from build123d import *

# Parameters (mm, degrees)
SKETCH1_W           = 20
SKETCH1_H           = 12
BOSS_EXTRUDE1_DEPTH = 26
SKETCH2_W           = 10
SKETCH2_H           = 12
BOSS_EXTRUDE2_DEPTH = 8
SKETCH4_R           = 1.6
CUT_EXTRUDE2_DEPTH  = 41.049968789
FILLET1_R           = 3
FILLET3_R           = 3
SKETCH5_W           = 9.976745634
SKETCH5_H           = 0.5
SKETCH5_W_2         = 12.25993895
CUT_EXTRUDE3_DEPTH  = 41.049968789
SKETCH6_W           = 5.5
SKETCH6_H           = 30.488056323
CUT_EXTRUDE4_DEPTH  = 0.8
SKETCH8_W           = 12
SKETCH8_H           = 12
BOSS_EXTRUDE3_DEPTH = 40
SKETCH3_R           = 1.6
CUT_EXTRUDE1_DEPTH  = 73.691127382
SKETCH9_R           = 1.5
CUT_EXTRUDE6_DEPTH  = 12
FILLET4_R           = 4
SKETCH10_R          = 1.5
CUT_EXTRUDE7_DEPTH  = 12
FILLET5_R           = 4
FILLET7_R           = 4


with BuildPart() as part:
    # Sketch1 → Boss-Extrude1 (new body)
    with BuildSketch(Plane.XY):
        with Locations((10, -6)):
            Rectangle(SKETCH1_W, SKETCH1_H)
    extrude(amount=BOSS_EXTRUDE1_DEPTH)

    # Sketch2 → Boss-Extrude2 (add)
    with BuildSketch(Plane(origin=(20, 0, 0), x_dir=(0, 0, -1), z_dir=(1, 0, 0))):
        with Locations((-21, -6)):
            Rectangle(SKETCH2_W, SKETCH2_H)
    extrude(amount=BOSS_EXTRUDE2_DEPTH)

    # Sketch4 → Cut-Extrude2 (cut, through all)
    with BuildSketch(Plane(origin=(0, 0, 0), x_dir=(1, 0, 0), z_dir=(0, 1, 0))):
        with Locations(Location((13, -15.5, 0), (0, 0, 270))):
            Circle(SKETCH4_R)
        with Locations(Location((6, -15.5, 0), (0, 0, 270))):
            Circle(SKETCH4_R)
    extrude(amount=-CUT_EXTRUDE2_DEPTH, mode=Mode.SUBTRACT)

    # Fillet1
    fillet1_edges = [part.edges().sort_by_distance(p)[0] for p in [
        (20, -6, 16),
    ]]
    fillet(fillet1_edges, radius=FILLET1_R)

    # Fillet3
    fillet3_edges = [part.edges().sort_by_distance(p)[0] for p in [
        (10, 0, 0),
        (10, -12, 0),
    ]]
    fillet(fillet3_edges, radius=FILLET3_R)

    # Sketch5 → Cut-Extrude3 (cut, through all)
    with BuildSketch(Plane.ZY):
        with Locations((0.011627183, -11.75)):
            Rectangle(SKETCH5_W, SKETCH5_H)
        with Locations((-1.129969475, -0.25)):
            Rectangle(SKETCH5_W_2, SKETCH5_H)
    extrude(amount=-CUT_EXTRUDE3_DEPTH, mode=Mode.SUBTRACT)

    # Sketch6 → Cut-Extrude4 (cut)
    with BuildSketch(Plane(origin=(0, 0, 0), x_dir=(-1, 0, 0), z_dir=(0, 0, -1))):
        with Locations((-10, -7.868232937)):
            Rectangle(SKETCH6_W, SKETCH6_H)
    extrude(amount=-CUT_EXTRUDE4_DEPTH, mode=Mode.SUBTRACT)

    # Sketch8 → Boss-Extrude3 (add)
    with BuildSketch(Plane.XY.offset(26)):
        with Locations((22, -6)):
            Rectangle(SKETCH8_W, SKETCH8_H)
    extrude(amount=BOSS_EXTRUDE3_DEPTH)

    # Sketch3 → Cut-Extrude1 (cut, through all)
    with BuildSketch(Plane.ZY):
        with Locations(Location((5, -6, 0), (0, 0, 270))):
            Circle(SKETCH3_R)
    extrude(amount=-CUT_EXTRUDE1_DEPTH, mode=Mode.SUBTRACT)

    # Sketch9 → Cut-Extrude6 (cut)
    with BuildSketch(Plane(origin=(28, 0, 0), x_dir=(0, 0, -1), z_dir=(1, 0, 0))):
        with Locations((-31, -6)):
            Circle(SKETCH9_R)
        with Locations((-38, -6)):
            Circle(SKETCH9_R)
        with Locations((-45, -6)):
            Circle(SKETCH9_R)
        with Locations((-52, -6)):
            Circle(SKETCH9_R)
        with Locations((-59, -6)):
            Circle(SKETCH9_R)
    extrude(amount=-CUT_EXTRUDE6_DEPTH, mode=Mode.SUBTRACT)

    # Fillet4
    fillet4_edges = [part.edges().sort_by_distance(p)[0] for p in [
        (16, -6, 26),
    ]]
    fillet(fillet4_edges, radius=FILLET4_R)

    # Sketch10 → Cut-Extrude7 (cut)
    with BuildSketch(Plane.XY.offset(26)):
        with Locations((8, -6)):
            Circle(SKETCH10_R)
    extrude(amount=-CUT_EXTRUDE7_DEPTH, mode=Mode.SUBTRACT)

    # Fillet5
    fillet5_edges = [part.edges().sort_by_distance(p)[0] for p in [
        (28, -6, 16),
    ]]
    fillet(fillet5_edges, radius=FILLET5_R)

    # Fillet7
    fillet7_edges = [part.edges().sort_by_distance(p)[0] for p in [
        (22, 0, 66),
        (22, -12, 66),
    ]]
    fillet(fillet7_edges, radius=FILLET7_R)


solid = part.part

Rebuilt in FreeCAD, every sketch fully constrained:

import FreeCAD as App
import Part
import Sketcher

V = App.Vector


def edges_at(feature, points):
    """Names of the edges that pass closest to the given points."""
    edges = feature.Shape.Edges
    near = lambda p: min(range(len(edges)), key=lambda i: edges[i].distToShape(Part.Vertex(*p))[0])
    return sorted({f"Edge{near(p) + 1}" for p in points})


def add_polygon(sketch, points):
    """Adds a closed chain of lines whose ends are joined by coincident constraints."""
    first, n = sketch.GeometryCount, len(points)
    for a, b in zip(points, points[1:] + points[:1]):
        sketch.addGeometry(Part.LineSegment(App.Vector(*a, 0), App.Vector(*b, 0)), False)
    for i in range(n):
        sketch.addConstraint(Sketcher.Constraint("Coincident", first + i, 2, first + (i + 1) % n, 1))

doc = App.newDocument("Part")
body = doc.addObject("PartDesign::Body", "Body")

# Sketch on XY plane
sketch1 = doc.addObject("Sketcher::SketchObject", "Sketch")
body.addObject(sketch1)
sketch1.AttachmentSupport = (doc.XY_Plane, [""])
sketch1.MapMode = "FlatFace"
add_polygon(sketch1, [(0, 0), (0, -12), (20, -12), (20, 0)])  # lines 0-3
sketch1.addConstraint([
    Sketcher.Constraint("Vertical", 0),
    Sketcher.Constraint("Horizontal", 1),
    Sketcher.Constraint("Vertical", 2),
    Sketcher.Constraint("Horizontal", 3),
    Sketcher.Constraint("Coincident", 3, 2, -1, 1),
    Sketcher.Constraint("DistanceX", 1, 1, 1, 2, 20.0),
    Sketcher.Constraint("DistanceY", 0, 2, 0, 1, 12.0),
])
pad1 = doc.addObject("PartDesign::Pad", "Pad")
body.addObject(pad1)
pad1.Profile = sketch1
pad1.Length = 26

# Sketch on YZ plane
sketch2 = doc.addObject("Sketcher::SketchObject", "Sketch001")
body.addObject(sketch2)
sketch2.AttachmentSupport = (doc.YZ_Plane, [""])
sketch2.MapMode = "FlatFace"
sketch2.AttachmentOffset = App.Placement(V(0, 0, 20), App.Rotation())
add_polygon(sketch2, [(0, 26), (-12, 26), (-12, 16), (0, 16)])  # lines 0-3
sketch2.addConstraint([
    Sketcher.Constraint("Horizontal", 0),
    Sketcher.Constraint("Vertical", 1),
    Sketcher.Constraint("Horizontal", 2),
    Sketcher.Constraint("Vertical", 3),
    Sketcher.Constraint("PointOnObject", 2, 2, -2),
    Sketcher.Constraint("DistanceX", 0, 2, 0, 1, 12.0),
    Sketcher.Constraint("DistanceY", 1, 2, 1, 1, 10.0),
    Sketcher.Constraint("DistanceY", -1, 1, 0, 2, 26.0),
])
pad2 = doc.addObject("PartDesign::Pad", "Pad001")
body.addObject(pad2)
pad2.Profile = sketch2
pad2.Length = 8

# Sketch on XZ plane
sketch3 = doc.addObject("Sketcher::SketchObject", "Sketch002")
body.addObject(sketch3)
sketch3.AttachmentSupport = (doc.XZ_Plane, [""])
sketch3.MapMode = "FlatFace"
sketch3.addGeometry([
    Part.Circle(V(13, 15.5, 0), V(0, 0, 1), 1.6),
    Part.Circle(V(6, 15.5, 0), V(0, 0, 1), 1.6),
], False)
sketch3.addConstraint([
    Sketcher.Constraint("Equal", 0, 1),
    Sketcher.Constraint("Horizontal", 0, 3, 1, 3),
    Sketcher.Constraint("Diameter", 0, 3.2),
    Sketcher.Constraint("DistanceX", -1, 1, 0, 3, 13.0),
    Sketcher.Constraint("DistanceX", -1, 1, 1, 3, 6.0),
    Sketcher.Constraint("DistanceY", -1, 1, 0, 3, 15.5),
])
pocket1 = doc.addObject("PartDesign::Pocket", "Pocket")
body.addObject(pocket1)
pocket1.Profile = sketch3
pocket1.Type = "ThroughAll"
pocket1.Reversed = True
doc.recompute()

fillet = doc.addObject("PartDesign::Fillet", "Fillet")
body.addObject(fillet)
fillet.Base = (pocket1, edges_at(pocket1, [(20, -6, 16)]))
fillet.Radius = 3
doc.recompute()

fillet2 = doc.addObject("PartDesign::Fillet", "Fillet001")
body.addObject(fillet2)
fillet2.Base = (fillet, edges_at(fillet, [(10, 0, 0), (10, -12, 0)]))
fillet2.Radius = 3

# Sketch on YZ plane
sketch4 = doc.addObject("Sketcher::SketchObject", "Sketch003")
body.addObject(sketch4)
sketch4.AttachmentSupport = (doc.YZ_Plane, [""])
sketch4.MapMode = "FlatFace"
add_polygon(sketch4, [(-11.5, -4.976746), (-12, -4.976746), (-12, 5), (-11.5, 5)])  # lines 0-3
add_polygon(sketch4, [(0, -7.259939), (-0.5, -7.259939), (-0.5, 5), (0, 5)])  # lines 4-7
sketch4.addConstraint([
    Sketcher.Constraint("Horizontal", 0),
    Sketcher.Constraint("Vertical", 1),
    Sketcher.Constraint("Horizontal", 2),
    Sketcher.Constraint("Vertical", 3),
    Sketcher.Constraint("Horizontal", 4),
    Sketcher.Constraint("Vertical", 5),
    Sketcher.Constraint("Horizontal", 6),
    Sketcher.Constraint("Vertical", 7),
    Sketcher.Constraint("PointOnObject", 6, 2, -2),
    Sketcher.Constraint("Horizontal", 2, 2, 5, 2),
    Sketcher.Constraint("Equal", 2, 4),
    Sketcher.Constraint("DistanceX", 0, 2, 0, 1, 0.5),
    Sketcher.Constraint("DistanceX", 0, 2, -1, 1, 12.0),
    Sketcher.Constraint("DistanceY", -1, 1, 1, 2, 5.0),
    Sketcher.Constraint("DistanceY", 5, 1, 5, 2, 12.259939),
    Sketcher.Constraint("DistanceY", 1, 1, 1, 2, 9.976746),
])
pocket2 = doc.addObject("PartDesign::Pocket", "Pocket001")
body.addObject(pocket2)
pocket2.Profile = sketch4
pocket2.Type = "ThroughAll"
pocket2.Reversed = True

# Sketch on XY plane
sketch5 = doc.addObject("Sketcher::SketchObject", "Sketch004")
body.addObject(sketch5)
sketch5.AttachmentSupport = (doc.XY_Plane, [""])
sketch5.MapMode = "FlatFace"
add_polygon(sketch5, [(12.75, 7.375795), (12.75, -23.112261), (7.25, -23.112261), (7.25, 7.375795)])  # lines 0-3
sketch5.addConstraint([
    Sketcher.Constraint("Vertical", 0),
    Sketcher.Constraint("Horizontal", 1),
    Sketcher.Constraint("Vertical", 2),
    Sketcher.Constraint("Horizontal", 3),
    Sketcher.Constraint("DistanceX", 1, 2, 1, 1, 5.5),
    Sketcher.Constraint("DistanceX", -1, 1, 0, 2, 12.75),
    Sketcher.Constraint("DistanceY", 0, 2, 0, 1, 30.488056),
    Sketcher.Constraint("DistanceY", 0, 2, -1, 1, 23.112261),
])
pocket3 = doc.addObject("PartDesign::Pocket", "Pocket002")
body.addObject(pocket3)
pocket3.Profile = sketch5
pocket3.Length = 0.8
pocket3.Reversed = True

# Sketch on XY plane
sketch6 = doc.addObject("Sketcher::SketchObject", "Sketch005")
body.addObject(sketch6)
sketch6.AttachmentSupport = (doc.XY_Plane, [""])
sketch6.MapMode = "FlatFace"
sketch6.AttachmentOffset = App.Placement(V(0, 0, 26), App.Rotation())
add_polygon(sketch6, [(16, 0), (16, -12), (28, -12), (28, 0)])  # lines 0-3
sketch6.addConstraint([
    Sketcher.Constraint("Vertical", 0),
    Sketcher.Constraint("Horizontal", 1),
    Sketcher.Constraint("Vertical", 2),
    Sketcher.Constraint("Horizontal", 3),
    Sketcher.Constraint("PointOnObject", 2, 2, -1),
    Sketcher.Constraint("Equal", 3, 0),
    Sketcher.Constraint("DistanceX", 1, 1, 1, 2, 12.0),
    Sketcher.Constraint("DistanceX", -1, 1, 0, 2, 16.0),
])
pad3 = doc.addObject("PartDesign::Pad", "Pad002")
body.addObject(pad3)
pad3.Profile = sketch6
pad3.Length = 40

# Sketch on YZ plane
sketch7 = doc.addObject("Sketcher::SketchObject", "Sketch006")
body.addObject(sketch7)
sketch7.AttachmentSupport = (doc.YZ_Plane, [""])
sketch7.MapMode = "FlatFace"
sketch7.addGeometry(Part.Circle(V(-6, 5, 0), V(0, 0, 1), 1.6), False)
sketch7.addConstraint([
    Sketcher.Constraint("Diameter", 0, 3.2),
    Sketcher.Constraint("DistanceX", 0, 3, -1, 1, 6.0),
    Sketcher.Constraint("DistanceY", -1, 1, 0, 3, 5.0),
])
pocket4 = doc.addObject("PartDesign::Pocket", "Pocket003")
body.addObject(pocket4)
pocket4.Profile = sketch7
pocket4.Type = "ThroughAll"
pocket4.Reversed = True

# Sketch on YZ plane
sketch8 = doc.addObject("Sketcher::SketchObject", "Sketch007")
body.addObject(sketch8)
sketch8.AttachmentSupport = (doc.YZ_Plane, [""])
sketch8.MapMode = "FlatFace"
sketch8.AttachmentOffset = App.Placement(V(0, 0, 28), App.Rotation())
sketch8.addGeometry([
    Part.Circle(V(-6, 31, 0), V(0, 0, 1), 1.5),  # 0
    Part.Circle(V(-6, 38, 0), V(0, 0, 1), 1.5),  # 1
    Part.Circle(V(-6, 45, 0), V(0, 0, 1), 1.5),  # 2
    Part.Circle(V(-6, 52, 0), V(0, 0, 1), 1.5),  # 3
    Part.Circle(V(-6, 59, 0), V(0, 0, 1), 1.5),  # 4
], False)
sketch8.addConstraint([
    Sketcher.Constraint("Equal", 0, 1),
    Sketcher.Constraint("Equal", 1, 2),
    Sketcher.Constraint("Equal", 2, 3),
    Sketcher.Constraint("Equal", 3, 4),
    Sketcher.Constraint("Vertical", 0, 3, 1, 3),
    Sketcher.Constraint("Vertical", 1, 3, 2, 3),
    Sketcher.Constraint("Vertical", 2, 3, 3, 3),
    Sketcher.Constraint("Vertical", 3, 3, 4, 3),
    Sketcher.Constraint("Diameter", 0, 3.0),
    Sketcher.Constraint("DistanceX", 0, 3, -1, 1, 6.0),
    Sketcher.Constraint("DistanceY", -1, 1, 0, 3, 31.0),
    Sketcher.Constraint("DistanceY", -1, 1, 1, 3, 38.0),
    Sketcher.Constraint("DistanceY", -1, 1, 2, 3, 45.0),
    Sketcher.Constraint("DistanceY", -1, 1, 3, 3, 52.0),
    Sketcher.Constraint("DistanceY", -1, 1, 4, 3, 59.0),
])
pocket5 = doc.addObject("PartDesign::Pocket", "Pocket004")
body.addObject(pocket5)
pocket5.Profile = sketch8
pocket5.Length = 12
doc.recompute()

fillet3 = doc.addObject("PartDesign::Fillet", "Fillet002")
body.addObject(fillet3)
fillet3.Base = (pocket5, edges_at(pocket5, [(16, -6, 26)]))
fillet3.Radius = 4

# Sketch on XY plane
sketch9 = doc.addObject("Sketcher::SketchObject", "Sketch008")
body.addObject(sketch9)
sketch9.AttachmentSupport = (doc.XY_Plane, [""])
sketch9.MapMode = "FlatFace"
sketch9.AttachmentOffset = App.Placement(V(0, 0, 26), App.Rotation())
sketch9.addGeometry(Part.Circle(V(8, -6, 0), V(0, 0, 1), 1.5), False)
sketch9.addConstraint([
    Sketcher.Constraint("Diameter", 0, 3.0),
    Sketcher.Constraint("DistanceX", -1, 1, 0, 3, 8.0),
    Sketcher.Constraint("DistanceY", 0, 3, -1, 1, 6.0),
])
pocket6 = doc.addObject("PartDesign::Pocket", "Pocket005")
body.addObject(pocket6)
pocket6.Profile = sketch9
pocket6.Length = 12
doc.recompute()

fillet4 = doc.addObject("PartDesign::Fillet", "Fillet003")
body.addObject(fillet4)
fillet4.Base = (pocket6, edges_at(pocket6, [(28, -6, 16)]))
fillet4.Radius = 4
doc.recompute()

fillet5 = doc.addObject("PartDesign::Fillet", "Fillet004")
body.addObject(fillet5)
fillet5.Base = (fillet4, edges_at(fillet4, [(22, 0, 66), (22, -12, 66)]))
fillet5.Radius = 4

doc.recompute()
